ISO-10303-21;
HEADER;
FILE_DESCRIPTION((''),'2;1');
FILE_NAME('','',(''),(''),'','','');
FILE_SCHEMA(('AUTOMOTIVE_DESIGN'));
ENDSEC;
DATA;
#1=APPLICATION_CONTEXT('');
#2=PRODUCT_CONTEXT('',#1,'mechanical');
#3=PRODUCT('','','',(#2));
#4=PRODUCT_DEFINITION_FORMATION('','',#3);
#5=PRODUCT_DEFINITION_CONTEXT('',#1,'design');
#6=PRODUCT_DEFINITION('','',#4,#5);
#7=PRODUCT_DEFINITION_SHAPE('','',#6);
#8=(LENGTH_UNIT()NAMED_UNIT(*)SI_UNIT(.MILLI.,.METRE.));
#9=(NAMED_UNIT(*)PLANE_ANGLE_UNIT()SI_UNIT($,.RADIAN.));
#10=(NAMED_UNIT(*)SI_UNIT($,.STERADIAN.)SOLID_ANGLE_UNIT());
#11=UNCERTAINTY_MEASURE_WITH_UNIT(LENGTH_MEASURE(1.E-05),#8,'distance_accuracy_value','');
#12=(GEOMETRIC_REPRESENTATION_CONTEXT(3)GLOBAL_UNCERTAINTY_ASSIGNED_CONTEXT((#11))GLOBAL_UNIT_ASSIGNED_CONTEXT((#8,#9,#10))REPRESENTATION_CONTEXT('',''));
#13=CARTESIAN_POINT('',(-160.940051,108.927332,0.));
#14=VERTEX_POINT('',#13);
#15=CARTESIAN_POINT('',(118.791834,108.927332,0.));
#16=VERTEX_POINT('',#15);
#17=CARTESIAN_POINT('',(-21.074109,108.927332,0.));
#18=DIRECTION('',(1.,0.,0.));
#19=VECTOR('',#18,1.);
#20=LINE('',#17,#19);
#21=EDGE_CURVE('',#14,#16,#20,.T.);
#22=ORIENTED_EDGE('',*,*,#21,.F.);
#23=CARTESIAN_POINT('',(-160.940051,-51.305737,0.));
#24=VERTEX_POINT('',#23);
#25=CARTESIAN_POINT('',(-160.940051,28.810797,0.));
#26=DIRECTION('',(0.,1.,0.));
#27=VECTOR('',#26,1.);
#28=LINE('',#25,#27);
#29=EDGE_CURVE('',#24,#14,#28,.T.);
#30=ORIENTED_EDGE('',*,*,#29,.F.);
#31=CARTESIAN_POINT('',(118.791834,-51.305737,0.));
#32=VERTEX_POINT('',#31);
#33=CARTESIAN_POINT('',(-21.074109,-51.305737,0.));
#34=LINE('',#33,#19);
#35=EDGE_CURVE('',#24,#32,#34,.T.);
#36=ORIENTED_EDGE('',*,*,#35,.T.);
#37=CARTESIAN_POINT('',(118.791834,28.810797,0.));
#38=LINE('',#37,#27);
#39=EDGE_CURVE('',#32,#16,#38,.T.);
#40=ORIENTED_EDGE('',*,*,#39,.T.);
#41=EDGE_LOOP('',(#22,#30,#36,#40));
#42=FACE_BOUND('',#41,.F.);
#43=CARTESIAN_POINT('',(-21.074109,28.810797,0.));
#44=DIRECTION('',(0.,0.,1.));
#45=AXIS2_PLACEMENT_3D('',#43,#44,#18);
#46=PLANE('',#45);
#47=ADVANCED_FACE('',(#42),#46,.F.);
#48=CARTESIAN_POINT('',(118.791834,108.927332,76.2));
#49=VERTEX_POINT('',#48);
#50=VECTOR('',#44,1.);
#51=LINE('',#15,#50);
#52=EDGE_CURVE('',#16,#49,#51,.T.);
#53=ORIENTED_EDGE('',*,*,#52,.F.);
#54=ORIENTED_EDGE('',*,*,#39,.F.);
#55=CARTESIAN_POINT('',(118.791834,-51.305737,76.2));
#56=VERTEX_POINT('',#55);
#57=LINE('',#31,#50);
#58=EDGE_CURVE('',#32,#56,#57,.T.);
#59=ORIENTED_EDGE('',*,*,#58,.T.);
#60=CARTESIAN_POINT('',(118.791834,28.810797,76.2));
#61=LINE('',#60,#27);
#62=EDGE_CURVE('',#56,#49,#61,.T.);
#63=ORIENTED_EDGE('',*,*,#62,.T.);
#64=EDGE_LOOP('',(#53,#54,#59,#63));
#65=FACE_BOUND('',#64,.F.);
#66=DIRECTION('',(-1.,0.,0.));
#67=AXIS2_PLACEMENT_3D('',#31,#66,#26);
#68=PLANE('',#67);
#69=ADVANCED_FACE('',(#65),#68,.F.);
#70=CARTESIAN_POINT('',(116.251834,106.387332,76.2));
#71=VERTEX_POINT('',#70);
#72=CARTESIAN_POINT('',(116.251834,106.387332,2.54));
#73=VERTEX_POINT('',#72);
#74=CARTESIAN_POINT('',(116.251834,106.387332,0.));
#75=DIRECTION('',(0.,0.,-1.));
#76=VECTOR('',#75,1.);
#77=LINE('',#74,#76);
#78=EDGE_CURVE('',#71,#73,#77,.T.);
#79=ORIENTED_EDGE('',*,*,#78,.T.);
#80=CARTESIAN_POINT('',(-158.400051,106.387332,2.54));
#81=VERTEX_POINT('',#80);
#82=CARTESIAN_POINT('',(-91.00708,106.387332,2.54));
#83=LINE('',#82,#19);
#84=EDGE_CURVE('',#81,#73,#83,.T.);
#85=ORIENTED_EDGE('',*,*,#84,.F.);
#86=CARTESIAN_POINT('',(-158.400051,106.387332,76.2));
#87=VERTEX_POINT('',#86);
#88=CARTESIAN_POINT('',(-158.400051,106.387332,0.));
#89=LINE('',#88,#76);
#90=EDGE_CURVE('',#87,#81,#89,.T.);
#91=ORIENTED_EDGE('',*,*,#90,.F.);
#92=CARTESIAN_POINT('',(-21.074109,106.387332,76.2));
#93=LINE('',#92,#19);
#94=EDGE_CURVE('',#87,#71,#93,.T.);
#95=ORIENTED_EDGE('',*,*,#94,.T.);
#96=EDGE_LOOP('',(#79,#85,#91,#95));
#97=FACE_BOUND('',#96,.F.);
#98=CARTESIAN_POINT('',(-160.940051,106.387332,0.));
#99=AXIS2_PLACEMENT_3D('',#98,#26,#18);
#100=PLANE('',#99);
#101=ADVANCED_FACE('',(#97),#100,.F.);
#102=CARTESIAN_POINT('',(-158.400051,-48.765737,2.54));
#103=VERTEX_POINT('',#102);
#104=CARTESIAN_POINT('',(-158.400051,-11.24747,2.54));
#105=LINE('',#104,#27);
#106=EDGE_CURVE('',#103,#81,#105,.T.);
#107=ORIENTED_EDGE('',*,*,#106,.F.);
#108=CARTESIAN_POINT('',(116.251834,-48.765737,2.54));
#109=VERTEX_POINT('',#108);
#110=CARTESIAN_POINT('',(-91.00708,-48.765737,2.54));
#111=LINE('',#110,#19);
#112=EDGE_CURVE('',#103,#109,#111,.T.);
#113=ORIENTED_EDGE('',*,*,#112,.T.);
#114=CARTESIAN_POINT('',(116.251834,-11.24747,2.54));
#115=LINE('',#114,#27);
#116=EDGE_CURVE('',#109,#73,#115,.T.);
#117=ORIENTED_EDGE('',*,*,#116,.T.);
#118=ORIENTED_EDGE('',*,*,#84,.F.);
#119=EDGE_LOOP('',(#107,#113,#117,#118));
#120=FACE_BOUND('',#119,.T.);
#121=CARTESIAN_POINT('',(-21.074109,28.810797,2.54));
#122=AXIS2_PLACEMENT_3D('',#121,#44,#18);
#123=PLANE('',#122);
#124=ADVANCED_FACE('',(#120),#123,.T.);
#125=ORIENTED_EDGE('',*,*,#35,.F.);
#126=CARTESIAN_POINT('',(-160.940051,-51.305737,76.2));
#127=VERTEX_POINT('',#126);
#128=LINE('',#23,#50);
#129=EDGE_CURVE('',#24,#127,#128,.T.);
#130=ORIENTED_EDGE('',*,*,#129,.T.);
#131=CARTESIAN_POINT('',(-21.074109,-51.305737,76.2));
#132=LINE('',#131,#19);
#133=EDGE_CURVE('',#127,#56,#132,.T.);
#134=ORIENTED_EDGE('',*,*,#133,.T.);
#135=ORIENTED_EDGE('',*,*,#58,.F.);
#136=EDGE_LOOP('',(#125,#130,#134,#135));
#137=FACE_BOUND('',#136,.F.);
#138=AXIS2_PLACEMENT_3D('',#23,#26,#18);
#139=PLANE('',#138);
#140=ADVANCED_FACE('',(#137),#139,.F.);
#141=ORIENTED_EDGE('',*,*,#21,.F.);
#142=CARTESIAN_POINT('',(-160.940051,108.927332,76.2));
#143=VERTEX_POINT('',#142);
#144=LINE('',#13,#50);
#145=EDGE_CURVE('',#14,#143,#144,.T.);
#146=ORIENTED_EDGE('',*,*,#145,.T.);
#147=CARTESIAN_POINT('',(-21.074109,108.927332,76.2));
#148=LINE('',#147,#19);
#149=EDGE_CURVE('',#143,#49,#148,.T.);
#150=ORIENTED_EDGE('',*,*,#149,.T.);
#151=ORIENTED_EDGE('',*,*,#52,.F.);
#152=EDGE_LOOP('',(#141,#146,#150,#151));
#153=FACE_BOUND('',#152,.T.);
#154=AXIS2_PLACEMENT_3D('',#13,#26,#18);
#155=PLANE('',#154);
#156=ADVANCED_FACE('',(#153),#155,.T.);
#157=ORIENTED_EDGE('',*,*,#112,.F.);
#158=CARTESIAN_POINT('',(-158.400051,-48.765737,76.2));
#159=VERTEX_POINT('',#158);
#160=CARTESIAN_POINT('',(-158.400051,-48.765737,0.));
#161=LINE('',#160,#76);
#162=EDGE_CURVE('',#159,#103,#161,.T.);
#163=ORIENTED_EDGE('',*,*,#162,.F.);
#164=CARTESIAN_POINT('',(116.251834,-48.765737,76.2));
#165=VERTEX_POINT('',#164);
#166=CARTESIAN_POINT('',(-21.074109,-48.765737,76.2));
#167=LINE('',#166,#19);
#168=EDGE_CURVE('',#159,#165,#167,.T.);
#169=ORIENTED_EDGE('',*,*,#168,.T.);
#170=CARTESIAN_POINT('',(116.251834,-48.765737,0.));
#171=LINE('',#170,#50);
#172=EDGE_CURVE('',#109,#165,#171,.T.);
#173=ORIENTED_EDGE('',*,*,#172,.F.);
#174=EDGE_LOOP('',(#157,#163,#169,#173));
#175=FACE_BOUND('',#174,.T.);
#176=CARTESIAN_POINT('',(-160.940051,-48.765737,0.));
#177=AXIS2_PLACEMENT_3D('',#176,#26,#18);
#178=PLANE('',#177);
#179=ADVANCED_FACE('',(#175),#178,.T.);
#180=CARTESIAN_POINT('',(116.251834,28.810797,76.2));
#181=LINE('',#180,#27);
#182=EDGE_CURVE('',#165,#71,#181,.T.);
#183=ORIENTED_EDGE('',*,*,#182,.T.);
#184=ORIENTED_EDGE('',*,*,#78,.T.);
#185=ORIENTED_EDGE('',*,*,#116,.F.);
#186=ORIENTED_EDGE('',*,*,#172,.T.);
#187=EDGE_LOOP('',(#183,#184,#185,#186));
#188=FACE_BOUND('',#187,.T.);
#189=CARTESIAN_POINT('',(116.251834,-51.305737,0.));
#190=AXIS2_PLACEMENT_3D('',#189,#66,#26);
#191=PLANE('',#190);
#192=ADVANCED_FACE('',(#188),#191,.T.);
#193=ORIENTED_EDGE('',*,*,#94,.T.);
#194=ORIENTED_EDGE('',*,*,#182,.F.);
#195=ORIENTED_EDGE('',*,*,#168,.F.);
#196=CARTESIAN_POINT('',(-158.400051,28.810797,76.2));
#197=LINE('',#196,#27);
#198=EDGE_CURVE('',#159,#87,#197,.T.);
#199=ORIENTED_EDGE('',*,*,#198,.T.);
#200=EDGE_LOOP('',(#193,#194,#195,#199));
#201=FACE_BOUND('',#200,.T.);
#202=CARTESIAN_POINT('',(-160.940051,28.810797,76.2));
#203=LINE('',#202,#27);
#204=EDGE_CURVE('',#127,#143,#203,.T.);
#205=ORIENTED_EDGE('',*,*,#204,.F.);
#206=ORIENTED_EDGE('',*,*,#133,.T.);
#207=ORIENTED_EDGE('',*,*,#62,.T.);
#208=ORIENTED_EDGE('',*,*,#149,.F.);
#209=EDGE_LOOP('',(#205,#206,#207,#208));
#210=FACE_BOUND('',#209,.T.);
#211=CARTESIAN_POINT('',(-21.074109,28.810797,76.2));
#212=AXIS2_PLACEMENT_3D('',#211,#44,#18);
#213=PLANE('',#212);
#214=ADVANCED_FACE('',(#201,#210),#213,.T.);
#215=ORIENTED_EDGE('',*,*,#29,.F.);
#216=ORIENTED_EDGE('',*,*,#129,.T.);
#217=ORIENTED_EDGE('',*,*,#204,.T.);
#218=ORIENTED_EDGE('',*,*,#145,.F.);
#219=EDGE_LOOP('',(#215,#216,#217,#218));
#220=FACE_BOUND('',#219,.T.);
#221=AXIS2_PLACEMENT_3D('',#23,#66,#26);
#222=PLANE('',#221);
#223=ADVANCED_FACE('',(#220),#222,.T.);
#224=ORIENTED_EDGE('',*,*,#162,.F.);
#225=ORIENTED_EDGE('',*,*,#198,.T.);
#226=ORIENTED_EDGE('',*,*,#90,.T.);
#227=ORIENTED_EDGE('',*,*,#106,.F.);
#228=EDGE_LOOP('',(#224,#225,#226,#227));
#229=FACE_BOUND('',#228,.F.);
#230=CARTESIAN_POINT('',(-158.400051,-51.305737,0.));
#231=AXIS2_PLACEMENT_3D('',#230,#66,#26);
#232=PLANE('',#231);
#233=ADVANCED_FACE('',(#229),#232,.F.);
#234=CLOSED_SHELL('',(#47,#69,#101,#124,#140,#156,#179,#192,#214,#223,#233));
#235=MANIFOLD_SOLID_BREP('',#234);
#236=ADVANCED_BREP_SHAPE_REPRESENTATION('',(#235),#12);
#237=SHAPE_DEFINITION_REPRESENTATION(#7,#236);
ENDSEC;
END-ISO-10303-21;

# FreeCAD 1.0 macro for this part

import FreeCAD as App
import Part
import Sketcher
Q = App.Units.Quantity


def faces_at(feature, points):
    """Names of the faces that lie closest to the given points."""
    faces = feature.Shape.Faces
    near = lambda p: min(range(len(faces)), key=lambda i: faces[i].distToShape(Part.Vertex(*p))[0])
    return sorted({f"Face{near(p) + 1}" for p in points})


def add_polygon(sketch, points):
    """Adds a closed chain of lines whose ends are joined by coincident constraints."""
    first, n = sketch.GeometryCount, len(points)
    for a, b in zip(points, points[1:] + points[:1]):
        sketch.addGeometry(Part.LineSegment(App.Vector(*a, 0), App.Vector(*b, 0)), False)
    for i in range(n):
        sketch.addConstraint(Sketcher.Constraint("Coincident", first + i, 2, first + (i + 1) % n, 1))

doc = App.newDocument("Part")
body = doc.addObject("PartDesign::Body", "Body")

# Sketch on YZ plane
sketch1 = body.newObject("Sketcher::SketchObject", "Sketch")
sketch1.AttachmentSupport = (doc.getObject("YZ_Plane"), [""])
sketch1.MapMode = "FlatFace"
add_polygon(sketch1, [(-105.784297, 33.007793), (-105.784297, -57.705499), (26.823832, -57.705499), (26.823832, 33.007793)])  # lines 0-3
sketch1.addConstraint(Sketcher.Constraint("Vertical", 0))
sketch1.addConstraint(Sketcher.Constraint("Horizontal", 1))
sketch1.addConstraint(Sketcher.Constraint("Vertical", 2))
sketch1.addConstraint(Sketcher.Constraint("Horizontal", 3))
sketch1.addConstraint(Sketcher.Constraint("DistanceX", 1, 1, 1, 2, Q("132.608129 mm")))
sketch1.addConstraint(Sketcher.Constraint("DistanceY", 0, 2, -1, 1, Q("57.705499 mm")))
sketch1.addConstraint(Sketcher.Constraint("DistanceY", 0, 2, 0, 1, Q("90.713292 mm")))
sketch1.addConstraint(Sketcher.Constraint("DistanceX", -1, 1, 1, 2, Q("26.823832 mm")))
pad1 = body.newObject("PartDesign::Pad", "Pad")
pad1.Profile = sketch1
pad1.Length = Q("3 in")
body2 = doc.addObject("PartDesign::Body", "Body001")

# Sketch on XY plane
sketch2 = body2.newObject("Sketcher::SketchObject", "Sketch001")
sketch2.AttachmentSupport = (doc.getObject("XY_Plane001"), [""])
sketch2.MapMode = "FlatFace"
add_polygon(sketch2, [(-160.940051, 108.927332), (-160.940051, -51.305737), (118.791834, -51.305737), (118.791834, 108.927332)])  # lines 0-3
sketch2.addConstraint(Sketcher.Constraint("Vertical", 0))
sketch2.addConstraint(Sketcher.Constraint("Horizontal", 1))
sketch2.addConstraint(Sketcher.Constraint("Vertical", 2))
sketch2.addConstraint(Sketcher.Constraint("Horizontal", 3))
sketch2.addConstraint(Sketcher.Constraint("DistanceY", 0, 2, 0, 1, Q("160.233069 mm")))
sketch2.addConstraint(Sketcher.Constraint("DistanceX", 1, 1, 1, 2, Q("279.731885 mm")))
sketch2.addConstraint(Sketcher.Constraint("DistanceX", 0, 2, -1, 1, Q("160.940051 mm")))
sketch2.addConstraint(Sketcher.Constraint("DistanceY", -1, 1, 2, 2, Q("108.927332 mm")))
pad2 = body2.newObject("PartDesign::Pad", "Pad001")
pad2.Profile = sketch2
pad2.Length = Q("3 in")
doc.recompute()

thickness = body2.newObject("PartDesign::Thickness", "Thickness")
thickness.Base = (pad2, faces_at(pad2, [(-21.074, 28.811, 76.2)]))
thickness.Value = Q("0.1 in")
thickness.Reversed = True
thickness.Join = "Arc"
body.Visibility = False

doc.recompute()
